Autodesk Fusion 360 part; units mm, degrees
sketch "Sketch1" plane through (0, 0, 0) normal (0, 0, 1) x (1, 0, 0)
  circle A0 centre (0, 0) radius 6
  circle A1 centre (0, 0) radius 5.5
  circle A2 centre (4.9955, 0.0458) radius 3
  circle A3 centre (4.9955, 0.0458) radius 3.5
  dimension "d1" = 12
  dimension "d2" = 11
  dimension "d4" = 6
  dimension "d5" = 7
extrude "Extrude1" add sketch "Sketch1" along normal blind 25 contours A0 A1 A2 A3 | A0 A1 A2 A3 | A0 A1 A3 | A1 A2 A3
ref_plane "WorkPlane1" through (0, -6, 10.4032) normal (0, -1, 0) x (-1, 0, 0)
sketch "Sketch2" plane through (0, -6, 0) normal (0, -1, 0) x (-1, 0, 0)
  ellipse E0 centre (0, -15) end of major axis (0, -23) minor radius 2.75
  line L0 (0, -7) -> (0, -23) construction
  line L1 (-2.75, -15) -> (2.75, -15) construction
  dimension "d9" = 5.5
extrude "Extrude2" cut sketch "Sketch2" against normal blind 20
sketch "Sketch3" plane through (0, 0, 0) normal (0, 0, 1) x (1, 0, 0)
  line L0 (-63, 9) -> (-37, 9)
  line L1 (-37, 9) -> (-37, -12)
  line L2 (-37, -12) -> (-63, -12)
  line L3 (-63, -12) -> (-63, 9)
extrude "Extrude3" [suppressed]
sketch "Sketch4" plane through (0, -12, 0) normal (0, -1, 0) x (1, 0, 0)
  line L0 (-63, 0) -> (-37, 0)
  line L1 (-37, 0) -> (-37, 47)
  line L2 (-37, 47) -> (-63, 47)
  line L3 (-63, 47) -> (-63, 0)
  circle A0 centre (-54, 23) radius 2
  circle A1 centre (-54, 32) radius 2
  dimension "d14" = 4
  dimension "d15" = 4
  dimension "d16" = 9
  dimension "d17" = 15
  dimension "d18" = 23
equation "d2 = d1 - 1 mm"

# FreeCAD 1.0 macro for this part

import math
import FreeCAD as App
import Part
import Sketcher

doc = App.newDocument("Part")
body = doc.addObject("PartDesign::Body", "Body")

sketch1 = body.newObject("Sketcher::SketchObject", "Sketch")
sketch1.AttachmentSupport = (doc.getObject("XY_Plane"), [""])
sketch1.MapMode = "FlatFace"
sketch1.addGeometry([
    Part.ArcOfCircle(Part.Circle(App.Vector(0, 0, 0), App.Vector(0, 0, 1), 6), math.radians(30), math.radians(331)),
    Part.ArcOfCircle(Part.Circle(App.Vector(5, 0, 0), App.Vector(0, 0, 1), 3), math.radians(87), math.radians(274)),
    Part.ArcOfCircle(Part.Circle(App.Vector(5, 0, 0), App.Vector(0, 0, 1), 3.5), math.radians(102), math.radians(259)),
    Part.ArcOfCircle(Part.Circle(App.Vector(0, 0, 0), App.Vector(0, 0, 1), 5.5), math.radians(39), math.radians(322)),
], False)
sketch1.addConstraint([
    Sketcher.Constraint("Coincident", 0, 1, 1, 1),
    Sketcher.Constraint("Coincident", 1, 2, 0, 2),
    Sketcher.Constraint("Coincident", 2, 1, 3, 1),
    Sketcher.Constraint("Coincident", 3, 2, 2, 2),
    Sketcher.Constraint("Coincident", 0, 3, -1, 1),
    Sketcher.Constraint("Coincident", 3, 3, -1, 1),
    Sketcher.Constraint("Coincident", 2, 3, 1, 3),
    Sketcher.Constraint("Radius", 0, 6.0),
    Sketcher.Constraint("Radius", 1, 3.0),
    Sketcher.Constraint("Radius", 2, 3.5),
    Sketcher.Constraint("Radius", 3, 5.5),
    Sketcher.Constraint("DistanceX", 1, 3, 0, 1, 0.177),
    Sketcher.Constraint("DistanceX", 1, 3, 1, 2, 0.232),
])
pad1 = body.newObject("PartDesign::Pad", "Pad")
pad1.Profile = sketch1
pad1.Length = 25

sketch2 = body.newObject("Sketcher::SketchObject", "Sketch001")
sketch2.AttachmentSupport = (doc.getObject("XZ_Plane"), [""])
sketch2.MapMode = "FlatFace"
sketch2.AttachmentOffset = App.Placement(App.Vector(0, 0, 6), App.Rotation())
sketch2.addGeometry(Part.Ellipse(App.Vector(0, 23, 0), App.Vector(-2.75, 15, 0), App.Vector(0, 15, 0)), False)
sketch2.addConstraint(Sketcher.Constraint("Block", 0))
pocket1 = body.newObject("PartDesign::Pocket", "Pocket")
pocket1.Profile = sketch2
pocket1.Length = 20

doc.recompute()
